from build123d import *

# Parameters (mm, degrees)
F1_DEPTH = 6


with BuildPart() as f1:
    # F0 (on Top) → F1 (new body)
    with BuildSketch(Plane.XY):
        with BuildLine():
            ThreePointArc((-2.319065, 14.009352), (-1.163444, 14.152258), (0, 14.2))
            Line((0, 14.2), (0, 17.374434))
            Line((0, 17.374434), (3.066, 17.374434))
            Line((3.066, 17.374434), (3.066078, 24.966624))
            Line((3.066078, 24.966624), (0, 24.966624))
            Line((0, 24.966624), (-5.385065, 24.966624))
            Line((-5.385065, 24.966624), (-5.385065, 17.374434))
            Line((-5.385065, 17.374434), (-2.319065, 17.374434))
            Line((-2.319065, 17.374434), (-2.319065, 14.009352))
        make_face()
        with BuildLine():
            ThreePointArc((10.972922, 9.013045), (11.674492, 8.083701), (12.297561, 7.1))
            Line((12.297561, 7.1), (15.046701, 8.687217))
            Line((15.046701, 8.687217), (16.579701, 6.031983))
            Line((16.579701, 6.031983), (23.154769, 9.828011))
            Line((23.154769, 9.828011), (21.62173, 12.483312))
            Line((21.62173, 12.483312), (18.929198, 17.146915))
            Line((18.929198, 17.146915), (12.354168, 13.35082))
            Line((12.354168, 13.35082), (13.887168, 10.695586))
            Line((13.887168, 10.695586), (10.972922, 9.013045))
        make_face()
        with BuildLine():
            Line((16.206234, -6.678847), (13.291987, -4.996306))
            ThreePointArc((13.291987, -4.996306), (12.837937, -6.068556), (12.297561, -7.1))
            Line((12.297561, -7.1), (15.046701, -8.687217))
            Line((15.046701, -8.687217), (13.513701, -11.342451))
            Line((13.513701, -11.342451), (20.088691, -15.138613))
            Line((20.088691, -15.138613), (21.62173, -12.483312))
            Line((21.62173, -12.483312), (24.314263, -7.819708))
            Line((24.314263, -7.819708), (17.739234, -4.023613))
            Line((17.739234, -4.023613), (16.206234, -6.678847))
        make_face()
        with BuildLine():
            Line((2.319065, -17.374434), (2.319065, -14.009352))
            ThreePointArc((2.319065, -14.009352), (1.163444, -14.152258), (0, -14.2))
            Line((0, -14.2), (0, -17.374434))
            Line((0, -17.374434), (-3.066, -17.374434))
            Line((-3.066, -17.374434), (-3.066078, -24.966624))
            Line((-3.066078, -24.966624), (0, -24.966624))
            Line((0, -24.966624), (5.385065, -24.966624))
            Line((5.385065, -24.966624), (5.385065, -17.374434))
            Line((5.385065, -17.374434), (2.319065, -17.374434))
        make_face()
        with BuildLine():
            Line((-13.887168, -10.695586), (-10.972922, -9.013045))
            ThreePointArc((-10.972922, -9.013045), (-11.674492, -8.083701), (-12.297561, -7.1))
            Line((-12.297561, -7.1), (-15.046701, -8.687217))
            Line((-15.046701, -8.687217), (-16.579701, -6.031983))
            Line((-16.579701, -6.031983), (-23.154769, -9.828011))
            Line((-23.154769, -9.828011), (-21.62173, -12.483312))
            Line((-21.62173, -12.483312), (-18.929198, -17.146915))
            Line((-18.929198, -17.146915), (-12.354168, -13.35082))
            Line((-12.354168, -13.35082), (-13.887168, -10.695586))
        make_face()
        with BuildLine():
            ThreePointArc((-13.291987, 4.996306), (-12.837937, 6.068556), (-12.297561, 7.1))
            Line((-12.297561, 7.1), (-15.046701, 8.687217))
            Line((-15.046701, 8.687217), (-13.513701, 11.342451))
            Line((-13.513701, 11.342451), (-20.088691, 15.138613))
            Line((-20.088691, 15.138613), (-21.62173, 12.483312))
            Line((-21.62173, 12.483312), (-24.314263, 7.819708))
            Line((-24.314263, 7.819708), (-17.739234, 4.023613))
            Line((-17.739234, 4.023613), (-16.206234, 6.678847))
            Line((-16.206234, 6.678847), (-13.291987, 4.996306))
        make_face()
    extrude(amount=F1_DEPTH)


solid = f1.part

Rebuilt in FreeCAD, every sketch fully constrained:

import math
import FreeCAD as App
import Part
import Sketcher
from FreeCAD import Vector
Q = App.Units.Quantity

doc = App.newDocument("Part")
body = doc.addObject("PartDesign::Body", "Body")
body.AllowCompound = True

# Sketch on XY plane
sketch1 = doc.addObject("Sketcher::SketchObject", "Sketch")
body.addObject(sketch1)
sketch1.AttachmentSupport = (doc.XY_Plane, [""])
sketch1.MapMode = "FlatFace"
sketch1.addGeometry(Part.ArcOfCircle(Part.Circle(Vector(-0.000006, 0.000057, 0), Vector(0, 0, 1), 14.199943), math.radians(89.999976), math.radians(99.399344)), False)
sketch1.addGeometry(Part.LineSegment(Vector(0, 14.2, 0), Vector(0, 17.374434, 0)), False)
sketch1.addGeometry(Part.LineSegment(Vector(0, 17.374434, 0), Vector(3.066, 17.374434, 0)), False)
sketch1.addGeometry(Part.LineSegment(Vector(3.066, 17.374434, 0), Vector(3.066078, 24.966624, 0)), False)
sketch1.addGeometry(Part.LineSegment(Vector(3.066078, 24.966624, 0), Vector(-5.385065, 24.966624, 0)), False)
sketch1.addGeometry(Part.LineSegment(Vector(-5.385065, 24.966624, 0), Vector(-5.385065, 17.374434, 0)), False)
sketch1.addGeometry(Part.LineSegment(Vector(-5.385065, 17.374434, 0), Vector(-2.319065, 17.374434, 0)), False)
sketch1.addGeometry(Part.LineSegment(Vector(-2.319065, 17.374434, 0), Vector(-2.319065, 14.009352, 0)), False)
sketch1.addGeometry(Part.ArcOfCircle(Part.Circle(Vector(-0.000142, -0.000101, 0), Vector(0, 0, 1), 14.200174), math.radians(30.000065), math.radians(39.399281)), False)
sketch1.addGeometry(Part.LineSegment(Vector(12.297561, 7.1, 0), Vector(15.046701, 8.687217, 0)), False)
sketch1.addGeometry(Part.LineSegment(Vector(15.046701, 8.687217, 0), Vector(16.579701, 6.031983, 0)), False)
sketch1.addGeometry(Part.LineSegment(Vector(16.579701, 6.031983, 0), Vector(23.154769, 9.828011, 0)), False)
sketch1.addGeometry(Part.LineSegment(Vector(23.154769, 9.828011, 0), Vector(21.62173, 12.483312, 0)), False)
sketch1.addGeometry(Part.LineSegment(Vector(21.62173, 12.483312, 0), Vector(18.929198, 17.146915, 0)), False)
sketch1.addGeometry(Part.LineSegment(Vector(18.929198, 17.146915, 0), Vector(12.354168, 13.35082, 0)), False)
sketch1.addGeometry(Part.LineSegment(Vector(12.354168, 13.35082, 0), Vector(13.887168, 10.695586, 0)), False)
sketch1.addGeometry(Part.LineSegment(Vector(13.887168, 10.695586, 0), Vector(10.972922, 9.013045, 0)), False)
sketch1.addGeometry(Part.LineSegment(Vector(16.206234, -6.678847, 0), Vector(13.291987, -4.996306, 0)), False)
sketch1.addGeometry(Part.ArcOfCircle(Part.Circle(Vector(-0.00001, 0.000001, 0), Vector(0, 0, 1), 14.20001), math.radians(-29.999984), math.radians(-20.600658)), False)
sketch1.addGeometry(Part.LineSegment(Vector(12.297561, -7.1, 0), Vector(15.046701, -8.687217, 0)), False)
sketch1.addGeometry(Part.LineSegment(Vector(15.046701, -8.687217, 0), Vector(13.513701, -11.342451, 0)), False)
sketch1.addGeometry(Part.LineSegment(Vector(13.513701, -11.342451, 0), Vector(20.088691, -15.138613, 0)), False)
sketch1.addGeometry(Part.LineSegment(Vector(20.088691, -15.138613, 0), Vector(21.62173, -12.483312, 0)), False)
sketch1.addGeometry(Part.LineSegment(Vector(21.62173, -12.483312, 0), Vector(24.314263, -7.819708, 0)), False)
sketch1.addGeometry(Part.LineSegment(Vector(24.314263, -7.819708, 0), Vector(17.739234, -4.023613, 0)), False)
sketch1.addGeometry(Part.LineSegment(Vector(17.739234, -4.023613, 0), Vector(16.206234, -6.678847, 0)), False)
sketch1.addGeometry(Part.LineSegment(Vector(2.319065, -17.374434, 0), Vector(2.319065, -14.009352, 0)), False)
sketch1.addGeometry(Part.ArcOfCircle(Part.Circle(Vector(0.000006, -0.000057, 0), Vector(0, 0, 1), 14.199943), math.radians(-90.000024), math.radians(-80.600656)), False)
sketch1.addGeometry(Part.LineSegment(Vector(0, -14.2, 0), Vector(0, -17.374434, 0)), False)
sketch1.addGeometry(Part.LineSegment(Vector(0, -17.374434, 0), Vector(-3.066, -17.374434, 0)), False)
sketch1.addGeometry(Part.LineSegment(Vector(-3.066, -17.374434, 0), Vector(-3.066078, -24.966624, 0)), False)
sketch1.addGeometry(Part.LineSegment(Vector(-3.066078, -24.966624, 0), Vector(5.385065, -24.966624, 0)), False)
sketch1.addGeometry(Part.LineSegment(Vector(5.385065, -24.966624, 0), Vector(5.385065, -17.374434, 0)), False)
sketch1.addGeometry(Part.LineSegment(Vector(5.385065, -17.374434, 0), Vector(2.319065, -17.374434, 0)), False)
sketch1.addGeometry(Part.LineSegment(Vector(-13.887168, -10.695586, 0), Vector(-10.972922, -9.013045, 0)), False)
sketch1.addGeometry(Part.ArcOfCircle(Part.Circle(Vector(0.000142, 0.000101, 0), Vector(0, 0, 1), 14.200174), math.radians(-149.999935), math.radians(-140.600719)), False)
sketch1.addGeometry(Part.LineSegment(Vector(-12.297561, -7.1, 0), Vector(-15.046701, -8.687217, 0)), False)
sketch1.addGeometry(Part.LineSegment(Vector(-15.046701, -8.687217, 0), Vector(-16.579701, -6.031983, 0)), False)
sketch1.addGeometry(Part.LineSegment(Vector(-16.579701, -6.031983, 0), Vector(-23.154769, -9.828011, 0)), False)
sketch1.addGeometry(Part.LineSegment(Vector(-23.154769, -9.828011, 0), Vector(-21.62173, -12.483312, 0)), False)
sketch1.addGeometry(Part.LineSegment(Vector(-21.62173, -12.483312, 0), Vector(-18.929198, -17.146915, 0)), False)
sketch1.addGeometry(Part.LineSegment(Vector(-18.929198, -17.146915, 0), Vector(-12.354168, -13.35082, 0)), False)
sketch1.addGeometry(Part.LineSegment(Vector(-12.354168, -13.35082, 0), Vector(-13.887168, -10.695586, 0)), False)
sketch1.addGeometry(Part.ArcOfCircle(Part.Circle(Vector(0.00001, -0.000001, 0), Vector(0, 0, 1), 14.20001), math.radians(150.000016), math.radians(159.399342)), False)
sketch1.addGeometry(Part.LineSegment(Vector(-12.297561, 7.1, 0), Vector(-15.046701, 8.687217, 0)), False)
sketch1.addGeometry(Part.LineSegment(Vector(-15.046701, 8.687217, 0), Vector(-13.513701, 11.342451, 0)), False)
sketch1.addGeometry(Part.LineSegment(Vector(-13.513701, 11.342451, 0), Vector(-20.088691, 15.138613, 0)), False)
sketch1.addGeometry(Part.LineSegment(Vector(-20.088691, 15.138613, 0), Vector(-21.62173, 12.483312, 0)), False)
sketch1.addGeometry(Part.LineSegment(Vector(-21.62173, 12.483312, 0), Vector(-24.314263, 7.819708, 0)), False)
sketch1.addGeometry(Part.LineSegment(Vector(-24.314263, 7.819708, 0), Vector(-17.739234, 4.023613, 0)), False)
sketch1.addGeometry(Part.LineSegment(Vector(-17.739234, 4.023613, 0), Vector(-16.206234, 6.678847, 0)), False)
sketch1.addGeometry(Part.LineSegment(Vector(-16.206234, 6.678847, 0), Vector(-13.291987, 4.996306, 0)), False)
sketch1.addConstraint(Sketcher.Constraint("Coincident", 0, 1, 1, 1))
sketch1.addConstraint(Sketcher.Constraint("Coincident", 1, 2, 2, 1))
sketch1.addConstraint(Sketcher.Constraint("Coincident", 2, 2, 3, 1))
sketch1.addConstraint(Sketcher.Constraint("Coincident", 3, 2, 4, 1))
sketch1.addConstraint(Sketcher.Constraint("Coincident", 4, 2, 5, 1))
sketch1.addConstraint(Sketcher.Constraint("Coincident", 5, 2, 6, 1))
sketch1.addConstraint(Sketcher.Constraint("Coincident", 6, 2, 7, 1))
sketch1.addConstraint(Sketcher.Constraint("Coincident", 7, 2, 0, 2))
sketch1.addConstraint(Sketcher.Constraint("Coincident", 8, 1, 9, 1))
sketch1.addConstraint(Sketcher.Constraint("Coincident", 9, 2, 10, 1))
sketch1.addConstraint(Sketcher.Constraint("Coincident", 10, 2, 11, 1))
sketch1.addConstraint(Sketcher.Constraint("Coincident", 11, 2, 12, 1))
sketch1.addConstraint(Sketcher.Constraint("Coincident", 12, 2, 13, 1))
sketch1.addConstraint(Sketcher.Constraint("Coincident", 13, 2, 14, 1))
sketch1.addConstraint(Sketcher.Constraint("Coincident", 14, 2, 15, 1))
sketch1.addConstraint(Sketcher.Constraint("Coincident", 15, 2, 16, 1))
sketch1.addConstraint(Sketcher.Constraint("Coincident", 16, 2, 8, 2))
sketch1.addConstraint(Sketcher.Constraint("Coincident", 17, 2, 18, 2))
sketch1.addConstraint(Sketcher.Constraint("Coincident", 18, 1, 19, 1))
sketch1.addConstraint(Sketcher.Constraint("Coincident", 19, 2, 20, 1))
sketch1.addConstraint(Sketcher.Constraint("Coincident", 20, 2, 21, 1))
sketch1.addConstraint(Sketcher.Constraint("Coincident", 21, 2, 22, 1))
sketch1.addConstraint(Sketcher.Constraint("Coincident", 22, 2, 23, 1))
sketch1.addConstraint(Sketcher.Constraint("Coincident", 23, 2, 24, 1))
sketch1.addConstraint(Sketcher.Constraint("Coincident", 24, 2, 25, 1))
sketch1.addConstraint(Sketcher.Constraint("Coincident", 25, 2, 17, 1))
sketch1.addConstraint(Sketcher.Constraint("Coincident", 26, 2, 27, 2))
sketch1.addConstraint(Sketcher.Constraint("Coincident", 27, 1, 28, 1))
sketch1.addConstraint(Sketcher.Constraint("Coincident", 28, 2, 29, 1))
sketch1.addConstraint(Sketcher.Constraint("Coincident", 29, 2, 30, 1))
sketch1.addConstraint(Sketcher.Constraint("Coincident", 30, 2, 31, 1))
sketch1.addConstraint(Sketcher.Constraint("Coincident", 31, 2, 32, 1))
sketch1.addConstraint(Sketcher.Constraint("Coincident", 32, 2, 33, 1))
sketch1.addConstraint(Sketcher.Constraint("Coincident", 33, 2, 26, 1))
sketch1.addConstraint(Sketcher.Constraint("Coincident", 34, 2, 35, 2))
sketch1.addConstraint(Sketcher.Constraint("Coincident", 35, 1, 36, 1))
sketch1.addConstraint(Sketcher.Constraint("Coincident", 36, 2, 37, 1))
sketch1.addConstraint(Sketcher.Constraint("Coincident", 37, 2, 38, 1))
sketch1.addConstraint(Sketcher.Constraint("Coincident", 38, 2, 39, 1))
sketch1.addConstraint(Sketcher.Constraint("Coincident", 39, 2, 40, 1))
sketch1.addConstraint(Sketcher.Constraint("Coincident", 40, 2, 41, 1))
sketch1.addConstraint(Sketcher.Constraint("Coincident", 41, 2, 42, 1))
sketch1.addConstraint(Sketcher.Constraint("Coincident", 42, 2, 34, 1))
sketch1.addConstraint(Sketcher.Constraint("Coincident", 43, 1, 44, 1))
sketch1.addConstraint(Sketcher.Constraint("Coincident", 44, 2, 45, 1))
sketch1.addConstraint(Sketcher.Constraint("Coincident", 45, 2, 46, 1))
sketch1.addConstraint(Sketcher.Constraint("Coincident", 46, 2, 47, 1))
sketch1.addConstraint(Sketcher.Constraint("Coincident", 47, 2, 48, 1))
sketch1.addConstraint(Sketcher.Constraint("Coincident", 48, 2, 49, 1))
sketch1.addConstraint(Sketcher.Constraint("Coincident", 49, 2, 50, 1))
sketch1.addConstraint(Sketcher.Constraint("Coincident", 50, 2, 51, 1))
sketch1.addConstraint(Sketcher.Constraint("Coincident", 51, 2, 43, 2))
sketch1.addConstraint(Sketcher.Constraint("Vertical", 1))
sketch1.addConstraint(Sketcher.Constraint("Horizontal", 2))
sketch1.addConstraint(Sketcher.Constraint("Horizontal", 4))
sketch1.addConstraint(Sketcher.Constraint("Vertical", 5))
sketch1.addConstraint(Sketcher.Constraint("Horizontal", 6))
sketch1.addConstraint(Sketcher.Constraint("Vertical", 7))
sketch1.addConstraint(Sketcher.Constraint("Vertical", 26))
sketch1.addConstraint(Sketcher.Constraint("Vertical", 28))
sketch1.addConstraint(Sketcher.Constraint("Horizontal", 29))
sketch1.addConstraint(Sketcher.Constraint("Horizontal", 31))
sketch1.addConstraint(Sketcher.Constraint("Vertical", 32))
sketch1.addConstraint(Sketcher.Constraint("Horizontal", 33))
sketch1.addConstraint(Sketcher.Constraint("Equal", 0, 27))
sketch1.addConstraint(Sketcher.Constraint("Equal", 8, 35))
sketch1.addConstraint(Sketcher.Constraint("Equal", 18, 43))
sketch1.addConstraint(Sketcher.Constraint("Symmetric", 0, 3, 27, 3, -1, 1))
sketch1.addConstraint(Sketcher.Constraint("Symmetric", 8, 3, 35, 3, -1, 1))
sketch1.addConstraint(Sketcher.Constraint("Symmetric", 18, 3, 43, 3, -1, 1))
sketch1.addConstraint(Sketcher.Constraint("Symmetric", 1, 2, 28, 2, -1, 1))
sketch1.addConstraint(Sketcher.Constraint("Symmetric", 3, 2, 30, 2, -1, 1))
sketch1.addConstraint(Sketcher.Constraint("Symmetric", 5, 2, 32, 2, -1, 1))
sketch1.addConstraint(Sketcher.Constraint("Symmetric", 9, 2, 36, 2, -1, 1))
sketch1.addConstraint(Sketcher.Constraint("Symmetric", 10, 2, 37, 2, -1, 1))
sketch1.addConstraint(Sketcher.Constraint("Symmetric", 11, 2, 38, 2, -1, 1))
sketch1.addConstraint(Sketcher.Constraint("Symmetric", 12, 2, 39, 2, -1, 1))
sketch1.addConstraint(Sketcher.Constraint("Symmetric", 13, 2, 40, 2, -1, 1))
sketch1.addConstraint(Sketcher.Constraint("Symmetric", 14, 2, 41, 2, -1, 1))
sketch1.addConstraint(Sketcher.Constraint("Symmetric", 15, 2, 42, 2, -1, 1))
sketch1.addConstraint(Sketcher.Constraint("Symmetric", 19, 2, 44, 2, -1, 1))
sketch1.addConstraint(Sketcher.Constraint("Symmetric", 20, 2, 45, 2, -1, 1))
sketch1.addConstraint(Sketcher.Constraint("Symmetric", 21, 2, 46, 2, -1, 1))
sketch1.addConstraint(Sketcher.Constraint("Symmetric", 22, 2, 47, 2, -1, 1))
sketch1.addConstraint(Sketcher.Constraint("Symmetric", 23, 2, 48, 2, -1, 1))
sketch1.addConstraint(Sketcher.Constraint("Symmetric", 24, 2, 49, 2, -1, 1))
sketch1.addConstraint(Sketcher.Constraint("Symmetric", 25, 2, 50, 2, -1, 1))
sketch1.addConstraint(Sketcher.Constraint("Symmetric", 18, 1, 35, 1, -2))
sketch1.addConstraint(Sketcher.Constraint("Symmetric", 19, 2, 36, 2, -2))
sketch1.addConstraint(Sketcher.Constraint("Symmetric", 22, 2, 39, 2, -2))
sketch1.addConstraint(Sketcher.Constraint("PointOnObject", 18, 3, -1))
sketch1.addConstraint(Sketcher.Constraint("PointOnObject", 0, 1, -2))
sketch1.addConstraint(Sketcher.Constraint("Perpendicular", 9, 10))
sketch1.addConstraint(Sketcher.Constraint("Parallel", 10, 12))
sketch1.addConstraint(Sketcher.Constraint("Parallel", 12, 13))
sketch1.addConstraint(Sketcher.Constraint("Perpendicular", 13, 14))
sketch1.addConstraint(Sketcher.Constraint("Perpendicular", 14, 15))
sketch1.addConstraint(Sketcher.Constraint("Perpendicular", 15, 16))
sketch1.addConstraint(Sketcher.Constraint("Parallel", 17, 19))
sketch1.addConstraint(Sketcher.Constraint("Perpendicular", 19, 20))
sketch1.addConstraint(Sketcher.Constraint("Parallel", 20, 22))
sketch1.addConstraint(Sketcher.Constraint("Parallel", 22, 23))
sketch1.addConstraint(Sketcher.Constraint("Perpendicular", 23, 24))
sketch1.addConstraint(Sketcher.Constraint("Perpendicular", 24, 25))
sketch1.addConstraint(Sketcher.Constraint("Parallel", 3, 30))
sketch1.addConstraint(Sketcher.Constraint("Parallel", 16, 34))
sketch1.addConstraint(Sketcher.Constraint("Parallel", 34, 36))
sketch1.addConstraint(Sketcher.Constraint("Perpendicular", 25, 44))
sketch1.addConstraint(Sketcher.Constraint("Perpendicular", 50, 51))
sketch1.addConstraint(Sketcher.Constraint("Horizontal", 2, 2, 5, 2))
sketch1.addConstraint(Sketcher.Constraint("Equal", 2, 6))
sketch1.addConstraint(Sketcher.Constraint("Equal", 29, 33))
sketch1.addConstraint(Sketcher.Constraint("Equal", 3, 11))
sketch1.addConstraint(Sketcher.Constraint("Equal", 11, 14))
sketch1.addConstraint(Sketcher.Constraint("Equal", 10, 15))
sketch1.addConstraint(Sketcher.Constraint("Equal", 16, 17))
sketch1.addConstraint(Sketcher.Constraint("Equal", 15, 20))
sketch1.addConstraint(Sketcher.Constraint("Equal", 12, 22))
sketch1.addConstraint(Sketcher.Constraint("Equal", 13, 23))
sketch1.addConstraint(Sketcher.Constraint("Equal", 21, 24))
sketch1.addConstraint(Sketcher.Constraint("Equal", 20, 25))
sketch1.addConstraint(Sketcher.Constraint("Angle", 9, Q("30.000004 deg")))
sketch1.addConstraint(Sketcher.Constraint("DistanceY", -1, 1, 0, 1, Q("14.2 mm")))
sketch1.addConstraint(Sketcher.Constraint("DistanceY", -1, 1, 8, 1, Q("7.1 mm")))
sketch1.addConstraint(Sketcher.Constraint("DistanceX", 2, 1, 2, 2, Q("3.066 mm")))
sketch1.addConstraint(Sketcher.Constraint("Radius", 18, Q("14.20001 mm")))
sketch1.addConstraint(Sketcher.Constraint("Distance", 10, Q("3.066 mm")))
sketch1.addConstraint(Sketcher.Constraint("Radius", 0, Q("14.199943 mm")))
sketch1.addConstraint(Sketcher.Constraint("Radius", 8, Q("14.200174 mm")))
sketch1.addConstraint(Sketcher.Constraint("DistanceY", 5, 2, 5, 1, Q("7.59219 mm")))
sketch1.addConstraint(Sketcher.Constraint("DistanceY", 8, 3, -1, 1, Q("0.000101 mm")))
sketch1.addConstraint(Sketcher.Constraint("DistanceX", -1, 1, 9, 2, Q("15.046701 mm")))
sketch1.addConstraint(Sketcher.Constraint("DistanceY", 11, 2, 12, 2, Q("2.655301 mm")))
sketch1.addConstraint(Sketcher.Constraint("DistanceY", 19, 2, 10, 2, Q("14.7192 mm")))
sketch1.addConstraint(Sketcher.Constraint("DistanceY", 26, 2, 20, 2, Q("2.666901 mm")))
sketch1.addConstraint(Sketcher.Constraint("DistanceX", 48, 2, 43, 1, Q("12.016702 mm")))
sketch1.addConstraint(Sketcher.Constraint("DistanceX", 4, 2, 4, 1, Q("8.451143 mm")))
sketch1.addConstraint(Sketcher.Constraint("DistanceY", 1, 1, 1, 2, Q("3.174434 mm")))
sketch1.addConstraint(Sketcher.Constraint("DistanceX", -1, 1, 3, 2, Q("3.066078 mm")))
pad1 = doc.addObject("PartDesign::Pad", "Pad")
body.addObject(pad1)
pad1.Profile = sketch1
pad1.Length = 6

doc.recompute()
